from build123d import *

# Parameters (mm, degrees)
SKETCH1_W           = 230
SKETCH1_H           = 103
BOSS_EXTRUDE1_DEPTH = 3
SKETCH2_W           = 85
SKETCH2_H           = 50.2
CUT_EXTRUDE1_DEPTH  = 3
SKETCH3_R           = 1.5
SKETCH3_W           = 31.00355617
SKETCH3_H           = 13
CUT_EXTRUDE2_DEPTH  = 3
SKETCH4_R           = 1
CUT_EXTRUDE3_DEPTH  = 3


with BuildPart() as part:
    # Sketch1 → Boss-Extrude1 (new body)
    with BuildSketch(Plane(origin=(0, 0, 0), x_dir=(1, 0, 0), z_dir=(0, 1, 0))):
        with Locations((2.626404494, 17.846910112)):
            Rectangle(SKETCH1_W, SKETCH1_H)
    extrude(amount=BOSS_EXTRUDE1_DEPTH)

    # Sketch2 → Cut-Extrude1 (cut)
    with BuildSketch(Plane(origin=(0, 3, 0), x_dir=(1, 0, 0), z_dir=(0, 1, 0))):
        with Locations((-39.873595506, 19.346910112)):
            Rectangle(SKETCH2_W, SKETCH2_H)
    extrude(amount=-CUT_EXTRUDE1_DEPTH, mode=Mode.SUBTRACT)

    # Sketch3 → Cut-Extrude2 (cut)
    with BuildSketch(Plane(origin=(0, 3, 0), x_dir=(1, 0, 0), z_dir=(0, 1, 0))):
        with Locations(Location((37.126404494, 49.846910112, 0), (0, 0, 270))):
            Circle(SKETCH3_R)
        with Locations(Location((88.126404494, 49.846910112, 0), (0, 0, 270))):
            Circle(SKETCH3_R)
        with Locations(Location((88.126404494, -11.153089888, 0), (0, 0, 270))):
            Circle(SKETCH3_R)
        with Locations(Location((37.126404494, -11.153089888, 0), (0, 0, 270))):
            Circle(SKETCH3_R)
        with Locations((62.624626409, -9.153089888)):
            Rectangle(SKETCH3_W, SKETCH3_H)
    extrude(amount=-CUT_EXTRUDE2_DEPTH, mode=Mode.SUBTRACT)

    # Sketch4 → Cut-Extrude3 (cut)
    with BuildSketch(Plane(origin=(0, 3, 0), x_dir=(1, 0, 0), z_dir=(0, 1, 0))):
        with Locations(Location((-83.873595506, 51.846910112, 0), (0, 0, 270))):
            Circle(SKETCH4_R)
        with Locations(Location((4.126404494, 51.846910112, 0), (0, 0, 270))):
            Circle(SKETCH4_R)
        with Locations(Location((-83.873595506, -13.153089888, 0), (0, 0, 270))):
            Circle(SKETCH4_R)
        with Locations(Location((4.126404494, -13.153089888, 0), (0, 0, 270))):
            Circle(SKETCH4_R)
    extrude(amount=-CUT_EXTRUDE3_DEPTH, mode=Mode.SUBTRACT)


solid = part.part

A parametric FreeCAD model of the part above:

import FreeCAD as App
import Part
import Sketcher
Q = App.Units.Quantity

doc = App.newDocument("Part")
body = doc.addObject("PartDesign::Body", "Body")

# Sketch on XZ plane
sketch1 = doc.addObject("Sketcher::SketchObject", "Sketch")
body.addObject(sketch1)
sketch1.AttachmentSupport = (doc.XZ_Plane, [""])
sketch1.MapMode = "FlatFace"
sketch1.addGeometry(Part.LineSegment(App.Vector(-112, -69, 0), App.Vector(-112, 34, 0)), False)
sketch1.addGeometry(Part.LineSegment(App.Vector(-112, 34, 0), App.Vector(118, 34, 0)), False)
sketch1.addGeometry(Part.LineSegment(App.Vector(118, 34, 0), App.Vector(118, -69, 0)), False)
sketch1.addGeometry(Part.LineSegment(App.Vector(118, -69, 0), App.Vector(-112, -69, 0)), False)
sketch1.addConstraint(Sketcher.Constraint("Coincident", 0, 2, 1, 1))
sketch1.addConstraint(Sketcher.Constraint("Coincident", 1, 2, 2, 1))
sketch1.addConstraint(Sketcher.Constraint("Coincident", 2, 2, 3, 1))
sketch1.addConstraint(Sketcher.Constraint("Coincident", 3, 2, 0, 1))
sketch1.addConstraint(Sketcher.Constraint("Vertical", 0))
sketch1.addConstraint(Sketcher.Constraint("Horizontal", 1))
sketch1.addConstraint(Sketcher.Constraint("Vertical", 2))
sketch1.addConstraint(Sketcher.Constraint("Horizontal", 3))
sketch1.addConstraint(Sketcher.Constraint("DistanceX", 1, 1, 1, 2, Q("230 mm")))
sketch1.addConstraint(Sketcher.Constraint("DistanceY", 0, 1, 0, 2, Q("103 mm")))
sketch1.addConstraint(Sketcher.Constraint("DistanceY", -1, 1, 0, 2, Q("33.65309 mm")))
sketch1.addConstraint(Sketcher.Constraint("DistanceX", 0, 2, -1, 1, Q("112.373596 mm")))
pad1 = doc.addObject("PartDesign::Pad", "Pad")
body.addObject(pad1)
pad1.Profile = sketch1
pad1.Length = 3
pad1.Reversed = True

# Sketch on XZ plane
sketch2 = doc.addObject("Sketcher::SketchObject", "Sketch001")
body.addObject(sketch2)
sketch2.AttachmentSupport = (doc.XZ_Plane, [""])
sketch2.MapMode = "FlatFace"
sketch2.AttachmentOffset = App.Placement(App.Vector(0, 0, -3), App.Rotation())
sketch2.addGeometry(Part.LineSegment(App.Vector(-82, -44, 0), App.Vector(-82, 6, 0)), False)
sketch2.addGeometry(Part.LineSegment(App.Vector(-82, 6, 0), App.Vector(3, 6, 0)), False)
sketch2.addGeometry(Part.LineSegment(App.Vector(3, 6, 0), App.Vector(3, -44, 0)), False)
sketch2.addGeometry(Part.LineSegment(App.Vector(3, -44, 0), App.Vector(-82, -44, 0)), False)
sketch2.addConstraint(Sketcher.Constraint("Coincident", 0, 2, 1, 1))
sketch2.addConstraint(Sketcher.Constraint("Coincident", 1, 2, 2, 1))
sketch2.addConstraint(Sketcher.Constraint("Coincident", 2, 2, 3, 1))
sketch2.addConstraint(Sketcher.Constraint("Coincident", 3, 2, 0, 1))
sketch2.addConstraint(Sketcher.Constraint("Vertical", 0))
sketch2.addConstraint(Sketcher.Constraint("Horizontal", 1))
sketch2.addConstraint(Sketcher.Constraint("Vertical", 2))
sketch2.addConstraint(Sketcher.Constraint("Horizontal", 3))
sketch2.addConstraint(Sketcher.Constraint("DistanceX", 1, 1, 1, 2, Q("85 mm")))
sketch2.addConstraint(Sketcher.Constraint("DistanceY", 0, 1, 0, 2, Q("50.2 mm")))
sketch2.addConstraint(Sketcher.Constraint("DistanceY", -1, 1, 0, 2, Q("5.75309 mm")))
sketch2.addConstraint(Sketcher.Constraint("DistanceX", 0, 2, -1, 1, Q("82.373596 mm")))
pocket1 = doc.addObject("PartDesign::Pocket", "Pocket")
body.addObject(pocket1)
pocket1.Profile = sketch2
pocket1.Length = 3
pocket1.Reversed = True

# Sketch on XZ plane
sketch3 = doc.addObject("Sketcher::SketchObject", "Sketch002")
body.addObject(sketch3)
sketch3.AttachmentSupport = (doc.XZ_Plane, [""])
sketch3.MapMode = "FlatFace"
sketch3.AttachmentOffset = App.Placement(App.Vector(0, 0, -3), App.Rotation())
sketch3.addGeometry(Part.Circle(App.Vector(37.1, -49.8, 0), App.Vector(0, 0, 1), 1.5), False)
sketch3.addGeometry(Part.Circle(App.Vector(88.1, -49.8, 0), App.Vector(0, 0, 1), 1.5), False)
sketch3.addGeometry(Part.Circle(App.Vector(88.1, 11.2, 0), App.Vector(0, 0, 1), 1.5), False)
sketch3.addGeometry(Part.Circle(App.Vector(37.1, 11.2, 0), App.Vector(0, 0, 1), 1.5), False)
sketch3.addGeometry(Part.LineSegment(App.Vector(47.1, 2.7, 0), App.Vector(47.1, 15.7, 0)), False)
sketch3.addGeometry(Part.LineSegment(App.Vector(47.1, 15.7, 0), App.Vector(78.1, 15.7, 0)), False)
sketch3.addGeometry(Part.LineSegment(App.Vector(78.1, 15.7, 0), App.Vector(78.1, 2.7, 0)), False)
sketch3.addGeometry(Part.LineSegment(App.Vector(78.1, 2.7, 0), App.Vector(47.1, 2.7, 0)), False)
sketch3.addConstraint(Sketcher.Constraint("Coincident", 4, 2, 5, 1))
sketch3.addConstraint(Sketcher.Constraint("Coincident", 5, 2, 6, 1))
sketch3.addConstraint(Sketcher.Constraint("Coincident", 6, 2, 7, 1))
sketch3.addConstraint(Sketcher.Constraint("Coincident", 7, 2, 4, 1))
sketch3.addConstraint(Sketcher.Constraint("Vertical", 4))
sketch3.addConstraint(Sketcher.Constraint("Horizontal", 5))
sketch3.addConstraint(Sketcher.Constraint("Vertical", 6))
sketch3.addConstraint(Sketcher.Constraint("Horizontal", 7))
sketch3.addConstraint(Sketcher.Constraint("Equal", 0, 1))
sketch3.addConstraint(Sketcher.Constraint("Equal", 1, 2))
sketch3.addConstraint(Sketcher.Constraint("Equal", 2, 3))
sketch3.addConstraint(Sketcher.Constraint("Horizontal", 0, 3, 1, 3))
sketch3.addConstraint(Sketcher.Constraint("Horizontal", 2, 3, 3, 3))
sketch3.addConstraint(Sketcher.Constraint("Vertical", 1, 3, 2, 3))
sketch3.addConstraint(Sketcher.Constraint("Vertical", 0, 3, 3, 3))
sketch3.addConstraint(Sketcher.Constraint("Diameter", 0, Q("3 mm")))
sketch3.addConstraint(Sketcher.Constraint("DistanceY", 4, 1, 4, 2, Q("13 mm")))
sketch3.addConstraint(Sketcher.Constraint("DistanceX", 0, 3, 1, 3, Q("51 mm")))
sketch3.addConstraint(Sketcher.Constraint("DistanceY", 1, 3, 2, 3, Q("61 mm")))
sketch3.addConstraint(Sketcher.Constraint("DistanceX", 5, 2, 2, 3, Q("10 mm")))
sketch3.addConstraint(Sketcher.Constraint("DistanceY", 3, 3, 4, 2, Q("4.5 mm")))
sketch3.addConstraint(Sketcher.Constraint("DistanceX", 5, 1, 5, 2, Q("31.003556 mm")))
sketch3.addConstraint(Sketcher.Constraint("DistanceY", 0, 3, -1, 1, Q("49.84691 mm")))
sketch3.addConstraint(Sketcher.Constraint("DistanceX", -1, 1, 4, 2, Q("47.122848 mm")))
pocket2 = doc.addObject("PartDesign::Pocket", "Pocket001")
body.addObject(pocket2)
pocket2.Profile = sketch3
pocket2.Length = 3
pocket2.Reversed = True

# Sketch on XZ plane
sketch4 = doc.addObject("Sketcher::SketchObject", "Sketch003")
body.addObject(sketch4)
sketch4.AttachmentSupport = (doc.XZ_Plane, [""])
sketch4.MapMode = "FlatFace"
sketch4.AttachmentOffset = App.Placement(App.Vector(0, 0, -3), App.Rotation())
sketch4.addGeometry(Part.Circle(App.Vector(-83.9, -51.8, 0), App.Vector(0, 0, 1), 1), False)
sketch4.addGeometry(Part.Circle(App.Vector(4.1, -51.8, 0), App.Vector(0, 0, 1), 1), False)
sketch4.addGeometry(Part.Circle(App.Vector(-83.9, 13.2, 0), App.Vector(0, 0, 1), 1), False)
sketch4.addGeometry(Part.Circle(App.Vector(4.1, 13.2, 0), App.Vector(0, 0, 1), 1), False)
sketch4.addConstraint(Sketcher.Constraint("Equal", 0, 1))
sketch4.addConstraint(Sketcher.Constraint("Equal", 1, 2))
sketch4.addConstraint(Sketcher.Constraint("Equal", 2, 3))
sketch4.addConstraint(Sketcher.Constraint("Horizontal", 0, 3, 1, 3))
sketch4.addConstraint(Sketcher.Constraint("Horizontal", 2, 3, 3, 3))
sketch4.addConstraint(Sketcher.Constraint("Vertical", 0, 3, 2, 3))
sketch4.addConstraint(Sketcher.Constraint("Vertical", 1, 3, 3, 3))
sketch4.addConstraint(Sketcher.Constraint("Diameter", 0, Q("2 mm")))
sketch4.addConstraint(Sketcher.Constraint("DistanceX", 0, 3, 1, 3, Q("88 mm")))
sketch4.addConstraint(Sketcher.Constraint("DistanceY", 0, 3, 2, 3, Q("65 mm")))
sketch4.addConstraint(Sketcher.Constraint("DistanceY", 0, 3, -1, 1, Q("51.84691 mm")))
sketch4.addConstraint(Sketcher.Constraint("DistanceX", 0, 3, -1, 1, Q("83.873596 mm")))
pocket3 = doc.addObject("PartDesign::Pocket", "Pocket002")
body.addObject(pocket3)
pocket3.Profile = sketch4
pocket3.Length = 3
pocket3.Reversed = True

doc.recompute()
